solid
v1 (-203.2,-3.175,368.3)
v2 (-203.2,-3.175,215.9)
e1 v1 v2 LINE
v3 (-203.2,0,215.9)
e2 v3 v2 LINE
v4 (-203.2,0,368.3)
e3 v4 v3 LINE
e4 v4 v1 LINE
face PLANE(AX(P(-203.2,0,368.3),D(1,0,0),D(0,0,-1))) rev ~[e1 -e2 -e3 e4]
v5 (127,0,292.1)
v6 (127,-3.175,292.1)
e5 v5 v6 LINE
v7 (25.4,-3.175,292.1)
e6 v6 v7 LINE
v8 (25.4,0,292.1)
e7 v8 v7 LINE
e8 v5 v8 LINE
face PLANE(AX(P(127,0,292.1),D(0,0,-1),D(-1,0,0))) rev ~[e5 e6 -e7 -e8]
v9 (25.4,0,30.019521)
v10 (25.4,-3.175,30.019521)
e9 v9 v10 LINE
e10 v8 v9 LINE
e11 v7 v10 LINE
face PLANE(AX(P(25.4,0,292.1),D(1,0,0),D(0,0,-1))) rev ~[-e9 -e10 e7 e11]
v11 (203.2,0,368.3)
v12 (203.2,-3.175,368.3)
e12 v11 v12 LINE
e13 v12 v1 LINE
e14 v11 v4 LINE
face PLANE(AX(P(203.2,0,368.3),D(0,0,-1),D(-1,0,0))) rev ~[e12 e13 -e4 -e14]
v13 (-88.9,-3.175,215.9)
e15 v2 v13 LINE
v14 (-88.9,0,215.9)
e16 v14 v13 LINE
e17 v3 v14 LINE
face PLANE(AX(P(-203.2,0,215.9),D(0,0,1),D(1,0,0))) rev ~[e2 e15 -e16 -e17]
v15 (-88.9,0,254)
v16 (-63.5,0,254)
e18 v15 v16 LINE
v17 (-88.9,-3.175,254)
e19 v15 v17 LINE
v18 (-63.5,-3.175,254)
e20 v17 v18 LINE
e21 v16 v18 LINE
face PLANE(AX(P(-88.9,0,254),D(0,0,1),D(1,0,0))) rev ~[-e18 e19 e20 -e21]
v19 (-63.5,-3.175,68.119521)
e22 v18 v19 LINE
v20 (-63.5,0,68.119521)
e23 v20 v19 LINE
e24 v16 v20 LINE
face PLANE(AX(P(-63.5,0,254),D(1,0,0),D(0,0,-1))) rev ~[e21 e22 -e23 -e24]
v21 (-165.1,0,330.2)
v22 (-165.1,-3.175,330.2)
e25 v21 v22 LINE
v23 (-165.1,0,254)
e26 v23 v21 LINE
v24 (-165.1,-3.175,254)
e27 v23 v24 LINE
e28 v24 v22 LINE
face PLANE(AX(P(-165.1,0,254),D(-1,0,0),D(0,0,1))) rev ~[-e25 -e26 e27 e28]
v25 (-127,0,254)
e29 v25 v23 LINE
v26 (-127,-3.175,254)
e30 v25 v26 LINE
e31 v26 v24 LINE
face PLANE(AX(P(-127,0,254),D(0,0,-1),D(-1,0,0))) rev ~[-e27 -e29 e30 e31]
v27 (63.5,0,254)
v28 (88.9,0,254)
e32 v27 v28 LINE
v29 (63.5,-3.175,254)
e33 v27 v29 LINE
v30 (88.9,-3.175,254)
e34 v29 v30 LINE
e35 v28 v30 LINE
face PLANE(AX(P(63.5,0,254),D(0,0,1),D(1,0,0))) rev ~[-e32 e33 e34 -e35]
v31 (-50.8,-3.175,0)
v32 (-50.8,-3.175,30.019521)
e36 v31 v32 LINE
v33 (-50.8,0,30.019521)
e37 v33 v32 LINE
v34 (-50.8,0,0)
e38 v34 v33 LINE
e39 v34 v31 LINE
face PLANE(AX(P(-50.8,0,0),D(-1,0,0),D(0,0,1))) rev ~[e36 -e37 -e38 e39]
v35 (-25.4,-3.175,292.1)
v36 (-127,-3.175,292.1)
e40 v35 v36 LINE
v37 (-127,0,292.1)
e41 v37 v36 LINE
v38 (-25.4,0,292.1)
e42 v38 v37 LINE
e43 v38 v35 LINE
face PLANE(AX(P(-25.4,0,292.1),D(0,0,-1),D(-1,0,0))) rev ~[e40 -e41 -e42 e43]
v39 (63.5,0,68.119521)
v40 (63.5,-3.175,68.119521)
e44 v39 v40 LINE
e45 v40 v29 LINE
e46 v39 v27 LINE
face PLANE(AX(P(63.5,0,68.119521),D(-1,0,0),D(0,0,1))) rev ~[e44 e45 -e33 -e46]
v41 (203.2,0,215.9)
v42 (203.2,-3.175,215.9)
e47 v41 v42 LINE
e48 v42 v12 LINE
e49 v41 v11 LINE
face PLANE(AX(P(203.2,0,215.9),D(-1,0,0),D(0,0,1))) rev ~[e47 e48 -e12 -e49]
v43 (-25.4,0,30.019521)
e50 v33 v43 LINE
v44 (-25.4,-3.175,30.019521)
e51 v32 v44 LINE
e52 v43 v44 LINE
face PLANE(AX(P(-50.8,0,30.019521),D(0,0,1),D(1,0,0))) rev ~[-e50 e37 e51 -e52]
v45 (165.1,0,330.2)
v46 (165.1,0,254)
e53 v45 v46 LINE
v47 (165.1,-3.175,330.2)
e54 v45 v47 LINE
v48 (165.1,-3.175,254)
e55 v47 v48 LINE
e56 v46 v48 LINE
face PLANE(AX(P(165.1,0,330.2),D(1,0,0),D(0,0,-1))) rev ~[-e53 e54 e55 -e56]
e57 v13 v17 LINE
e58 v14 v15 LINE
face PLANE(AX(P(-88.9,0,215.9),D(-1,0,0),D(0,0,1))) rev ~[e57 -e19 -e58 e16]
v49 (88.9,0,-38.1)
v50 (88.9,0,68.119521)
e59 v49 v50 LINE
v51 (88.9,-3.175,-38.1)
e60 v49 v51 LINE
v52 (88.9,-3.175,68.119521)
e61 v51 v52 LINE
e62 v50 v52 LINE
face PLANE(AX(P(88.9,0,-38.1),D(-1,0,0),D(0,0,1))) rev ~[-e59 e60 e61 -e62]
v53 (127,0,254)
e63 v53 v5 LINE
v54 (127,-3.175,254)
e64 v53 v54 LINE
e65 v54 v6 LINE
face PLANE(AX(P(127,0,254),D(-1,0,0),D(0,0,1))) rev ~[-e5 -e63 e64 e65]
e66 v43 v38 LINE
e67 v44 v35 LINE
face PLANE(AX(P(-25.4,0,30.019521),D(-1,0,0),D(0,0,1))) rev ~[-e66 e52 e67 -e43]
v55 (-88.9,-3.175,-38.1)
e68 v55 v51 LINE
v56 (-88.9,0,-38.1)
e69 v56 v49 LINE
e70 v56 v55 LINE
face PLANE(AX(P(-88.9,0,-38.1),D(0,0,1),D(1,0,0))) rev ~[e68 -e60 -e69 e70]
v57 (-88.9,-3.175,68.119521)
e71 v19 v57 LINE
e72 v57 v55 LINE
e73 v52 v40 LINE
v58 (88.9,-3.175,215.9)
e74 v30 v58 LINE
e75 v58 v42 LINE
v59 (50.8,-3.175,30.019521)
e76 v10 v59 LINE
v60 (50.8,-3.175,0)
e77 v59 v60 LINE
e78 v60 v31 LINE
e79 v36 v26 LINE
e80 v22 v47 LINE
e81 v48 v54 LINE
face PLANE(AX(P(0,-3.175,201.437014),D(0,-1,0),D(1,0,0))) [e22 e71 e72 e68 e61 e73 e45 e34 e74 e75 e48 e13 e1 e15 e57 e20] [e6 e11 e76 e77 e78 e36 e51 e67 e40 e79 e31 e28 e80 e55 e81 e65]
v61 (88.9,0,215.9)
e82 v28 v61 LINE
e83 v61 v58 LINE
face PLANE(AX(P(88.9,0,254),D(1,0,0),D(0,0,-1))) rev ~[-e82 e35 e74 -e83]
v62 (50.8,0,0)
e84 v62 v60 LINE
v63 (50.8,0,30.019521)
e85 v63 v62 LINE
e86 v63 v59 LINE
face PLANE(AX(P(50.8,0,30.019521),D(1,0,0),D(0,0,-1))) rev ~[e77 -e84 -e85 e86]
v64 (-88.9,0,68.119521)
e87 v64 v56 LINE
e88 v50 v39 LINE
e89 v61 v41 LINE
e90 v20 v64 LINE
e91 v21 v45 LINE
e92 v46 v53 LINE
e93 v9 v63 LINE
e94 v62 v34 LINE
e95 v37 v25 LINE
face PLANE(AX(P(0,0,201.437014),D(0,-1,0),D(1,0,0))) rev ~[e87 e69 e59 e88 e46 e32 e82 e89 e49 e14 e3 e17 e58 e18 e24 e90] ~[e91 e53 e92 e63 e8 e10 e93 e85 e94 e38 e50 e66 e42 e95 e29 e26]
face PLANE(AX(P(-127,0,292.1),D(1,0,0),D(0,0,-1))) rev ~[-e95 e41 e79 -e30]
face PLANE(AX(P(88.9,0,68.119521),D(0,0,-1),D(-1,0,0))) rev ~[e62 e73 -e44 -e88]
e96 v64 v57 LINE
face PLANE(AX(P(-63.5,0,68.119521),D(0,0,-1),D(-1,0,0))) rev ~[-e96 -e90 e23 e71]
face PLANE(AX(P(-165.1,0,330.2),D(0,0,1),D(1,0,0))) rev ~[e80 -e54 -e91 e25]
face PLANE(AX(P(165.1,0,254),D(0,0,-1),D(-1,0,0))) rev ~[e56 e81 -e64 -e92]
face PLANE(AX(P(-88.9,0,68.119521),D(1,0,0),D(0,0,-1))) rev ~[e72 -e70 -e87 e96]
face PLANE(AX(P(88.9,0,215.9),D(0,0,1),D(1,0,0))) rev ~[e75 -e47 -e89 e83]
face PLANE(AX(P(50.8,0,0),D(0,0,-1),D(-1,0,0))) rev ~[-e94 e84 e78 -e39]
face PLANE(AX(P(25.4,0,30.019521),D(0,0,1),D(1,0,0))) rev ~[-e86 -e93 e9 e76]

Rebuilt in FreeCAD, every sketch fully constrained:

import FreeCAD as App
import Part
import Sketcher
Q = App.Units.Quantity


def add_polygon(sketch, points):
    """Adds a closed chain of lines whose ends are joined by coincident constraints."""
    first, n = sketch.GeometryCount, len(points)
    for a, b in zip(points, points[1:] + points[:1]):
        sketch.addGeometry(Part.LineSegment(App.Vector(*a, 0), App.Vector(*b, 0)), False)
    for i in range(n):
        sketch.addConstraint(Sketcher.Constraint("Coincident", first + i, 2, first + (i + 1) % n, 1))

doc = App.newDocument("Part")
body = doc.addObject("PartDesign::Body", "Body")

sketch1 = doc.addObject("Sketcher::SketchObject", "Sketch")
body.addObject(sketch1)
sketch1.AttachmentSupport = (doc.XZ_Plane, [""])
sketch1.MapMode = "FlatFace"
add_polygon(sketch1, [(-89, 254), (-64, 254), (-64, 68), (-89, 68), (-89, -38), (89, -38), (89, 68), (64, 68), (64, 254), (89, 254), (89, 216), (203, 216), (203, 368), (-203, 368), (-203, 216), (-89, 216)])
add_polygon(sketch1, [(-165, 330), (165, 330), (165, 254), (127, 254), (127, 292), (25, 292), (25, 30), (51, 30), (51, 0), (-51, 0), (-51, 30), (-25, 30), (-25, 292), (-127, 292), (-127, 254), (-165, 254)])
sketch1.addConstraint(Sketcher.Constraint("Horizontal", 0))
sketch1.addConstraint(Sketcher.Constraint("Vertical", 1))
sketch1.addConstraint(Sketcher.Constraint("Horizontal", 2))
sketch1.addConstraint(Sketcher.Constraint("Vertical", 3))
sketch1.addConstraint(Sketcher.Constraint("Horizontal", 4))
sketch1.addConstraint(Sketcher.Constraint("Vertical", 5))
sketch1.addConstraint(Sketcher.Constraint("Horizontal", 6))
sketch1.addConstraint(Sketcher.Constraint("Vertical", 7))
sketch1.addConstraint(Sketcher.Constraint("Horizontal", 8))
sketch1.addConstraint(Sketcher.Constraint("Vertical", 9))
sketch1.addConstraint(Sketcher.Constraint("Horizontal", 10))
sketch1.addConstraint(Sketcher.Constraint("Vertical", 11))
sketch1.addConstraint(Sketcher.Constraint("Horizontal", 12))
sketch1.addConstraint(Sketcher.Constraint("Vertical", 13))
sketch1.addConstraint(Sketcher.Constraint("Horizontal", 14))
sketch1.addConstraint(Sketcher.Constraint("Vertical", 15))
sketch1.addConstraint(Sketcher.Constraint("Horizontal", 16))
sketch1.addConstraint(Sketcher.Constraint("Vertical", 17))
sketch1.addConstraint(Sketcher.Constraint("Horizontal", 18))
sketch1.addConstraint(Sketcher.Constraint("Vertical", 19))
sketch1.addConstraint(Sketcher.Constraint("Horizontal", 20))
sketch1.addConstraint(Sketcher.Constraint("Vertical", 21))
sketch1.addConstraint(Sketcher.Constraint("Horizontal", 22))
sketch1.addConstraint(Sketcher.Constraint("Vertical", 23))
sketch1.addConstraint(Sketcher.Constraint("Horizontal", 24))
sketch1.addConstraint(Sketcher.Constraint("Vertical", 25))
sketch1.addConstraint(Sketcher.Constraint("Horizontal", 26))
sketch1.addConstraint(Sketcher.Constraint("Vertical", 27))
sketch1.addConstraint(Sketcher.Constraint("Horizontal", 28))
sketch1.addConstraint(Sketcher.Constraint("Vertical", 29))
sketch1.addConstraint(Sketcher.Constraint("Horizontal", 30))
sketch1.addConstraint(Sketcher.Constraint("Vertical", 31))
sketch1.addConstraint(Sketcher.Constraint("Symmetric", 23, 2, 24, 2, -1, 1))
sketch1.addConstraint(Sketcher.Constraint("Symmetric", 2, 2, 5, 2, -2))
sketch1.addConstraint(Sketcher.Constraint("Symmetric", 0, 2, 7, 2, -2))
sketch1.addConstraint(Sketcher.Constraint("Symmetric", 10, 2, 13, 2, -2))
sketch1.addConstraint(Sketcher.Constraint("Symmetric", 21, 2, 26, 2, -2))
sketch1.addConstraint(Sketcher.Constraint("Symmetric", 19, 2, 28, 2, -2))
sketch1.addConstraint(Sketcher.Constraint("Symmetric", 17, 2, 30, 2, -2))
sketch1.addConstraint(Sketcher.Constraint("Horizontal", 15, 2, 17, 2))
sketch1.addConstraint(Sketcher.Constraint("Vertical", 5, 2, 8, 2))
sketch1.addConstraint(Sketcher.Constraint("Vertical", 3, 2, 14, 2))
sketch1.addConstraint(Sketcher.Constraint("Equal", 8, 22))
sketch1.addConstraint(Sketcher.Constraint("Equal", 20, 24))
sketch1.addConstraint(Sketcher.Constraint("Equal", 30, 9))
sketch1.addConstraint(Sketcher.Constraint("Equal", 15, 19))
sketch1.addConstraint(Sketcher.Constraint("DistanceX", 0, 1, 0, 2, Q("1 in")))
sketch1.addConstraint(Sketcher.Constraint("DistanceX", 4, 1, 4, 2, Q("7 in")))
sketch1.addConstraint(Sketcher.Constraint("DistanceX", 12, 2, 12, 1, Q("16 in")))
sketch1.addConstraint(Sketcher.Constraint("DistanceX", 16, 1, 16, 2, Q("13 in")))
sketch1.addConstraint(Sketcher.Constraint("DistanceX", 20, 2, 20, 1, Q("4 in")))
sketch1.addConstraint(Sketcher.Constraint("DistanceY", 11, 1, 11, 2, Q("6 in")))
sketch1.addConstraint(Sketcher.Constraint("DistanceY", 17, 2, 17, 1, Q("3 in")))
sketch1.addConstraint(Sketcher.Constraint("DistanceY", -1, 1, 0, 2, Q("10 in")))
sketch1.addConstraint(Sketcher.Constraint("DistanceY", 3, 2, -1, 1, Q("1.5 in")))
sketch1.addConstraint(Sketcher.Constraint("DistanceY", 21, 2, 6, 2, Q("1.5 in")))
sketch1.addConstraint(Sketcher.Constraint("DistanceY", 1, 2, 1, 1, 185.880479))
pad1 = doc.addObject("PartDesign::Pad", "Pad")
body.addObject(pad1)
pad1.Profile = sketch1
pad1.Length = Q("0.125 in")

doc.recompute()
